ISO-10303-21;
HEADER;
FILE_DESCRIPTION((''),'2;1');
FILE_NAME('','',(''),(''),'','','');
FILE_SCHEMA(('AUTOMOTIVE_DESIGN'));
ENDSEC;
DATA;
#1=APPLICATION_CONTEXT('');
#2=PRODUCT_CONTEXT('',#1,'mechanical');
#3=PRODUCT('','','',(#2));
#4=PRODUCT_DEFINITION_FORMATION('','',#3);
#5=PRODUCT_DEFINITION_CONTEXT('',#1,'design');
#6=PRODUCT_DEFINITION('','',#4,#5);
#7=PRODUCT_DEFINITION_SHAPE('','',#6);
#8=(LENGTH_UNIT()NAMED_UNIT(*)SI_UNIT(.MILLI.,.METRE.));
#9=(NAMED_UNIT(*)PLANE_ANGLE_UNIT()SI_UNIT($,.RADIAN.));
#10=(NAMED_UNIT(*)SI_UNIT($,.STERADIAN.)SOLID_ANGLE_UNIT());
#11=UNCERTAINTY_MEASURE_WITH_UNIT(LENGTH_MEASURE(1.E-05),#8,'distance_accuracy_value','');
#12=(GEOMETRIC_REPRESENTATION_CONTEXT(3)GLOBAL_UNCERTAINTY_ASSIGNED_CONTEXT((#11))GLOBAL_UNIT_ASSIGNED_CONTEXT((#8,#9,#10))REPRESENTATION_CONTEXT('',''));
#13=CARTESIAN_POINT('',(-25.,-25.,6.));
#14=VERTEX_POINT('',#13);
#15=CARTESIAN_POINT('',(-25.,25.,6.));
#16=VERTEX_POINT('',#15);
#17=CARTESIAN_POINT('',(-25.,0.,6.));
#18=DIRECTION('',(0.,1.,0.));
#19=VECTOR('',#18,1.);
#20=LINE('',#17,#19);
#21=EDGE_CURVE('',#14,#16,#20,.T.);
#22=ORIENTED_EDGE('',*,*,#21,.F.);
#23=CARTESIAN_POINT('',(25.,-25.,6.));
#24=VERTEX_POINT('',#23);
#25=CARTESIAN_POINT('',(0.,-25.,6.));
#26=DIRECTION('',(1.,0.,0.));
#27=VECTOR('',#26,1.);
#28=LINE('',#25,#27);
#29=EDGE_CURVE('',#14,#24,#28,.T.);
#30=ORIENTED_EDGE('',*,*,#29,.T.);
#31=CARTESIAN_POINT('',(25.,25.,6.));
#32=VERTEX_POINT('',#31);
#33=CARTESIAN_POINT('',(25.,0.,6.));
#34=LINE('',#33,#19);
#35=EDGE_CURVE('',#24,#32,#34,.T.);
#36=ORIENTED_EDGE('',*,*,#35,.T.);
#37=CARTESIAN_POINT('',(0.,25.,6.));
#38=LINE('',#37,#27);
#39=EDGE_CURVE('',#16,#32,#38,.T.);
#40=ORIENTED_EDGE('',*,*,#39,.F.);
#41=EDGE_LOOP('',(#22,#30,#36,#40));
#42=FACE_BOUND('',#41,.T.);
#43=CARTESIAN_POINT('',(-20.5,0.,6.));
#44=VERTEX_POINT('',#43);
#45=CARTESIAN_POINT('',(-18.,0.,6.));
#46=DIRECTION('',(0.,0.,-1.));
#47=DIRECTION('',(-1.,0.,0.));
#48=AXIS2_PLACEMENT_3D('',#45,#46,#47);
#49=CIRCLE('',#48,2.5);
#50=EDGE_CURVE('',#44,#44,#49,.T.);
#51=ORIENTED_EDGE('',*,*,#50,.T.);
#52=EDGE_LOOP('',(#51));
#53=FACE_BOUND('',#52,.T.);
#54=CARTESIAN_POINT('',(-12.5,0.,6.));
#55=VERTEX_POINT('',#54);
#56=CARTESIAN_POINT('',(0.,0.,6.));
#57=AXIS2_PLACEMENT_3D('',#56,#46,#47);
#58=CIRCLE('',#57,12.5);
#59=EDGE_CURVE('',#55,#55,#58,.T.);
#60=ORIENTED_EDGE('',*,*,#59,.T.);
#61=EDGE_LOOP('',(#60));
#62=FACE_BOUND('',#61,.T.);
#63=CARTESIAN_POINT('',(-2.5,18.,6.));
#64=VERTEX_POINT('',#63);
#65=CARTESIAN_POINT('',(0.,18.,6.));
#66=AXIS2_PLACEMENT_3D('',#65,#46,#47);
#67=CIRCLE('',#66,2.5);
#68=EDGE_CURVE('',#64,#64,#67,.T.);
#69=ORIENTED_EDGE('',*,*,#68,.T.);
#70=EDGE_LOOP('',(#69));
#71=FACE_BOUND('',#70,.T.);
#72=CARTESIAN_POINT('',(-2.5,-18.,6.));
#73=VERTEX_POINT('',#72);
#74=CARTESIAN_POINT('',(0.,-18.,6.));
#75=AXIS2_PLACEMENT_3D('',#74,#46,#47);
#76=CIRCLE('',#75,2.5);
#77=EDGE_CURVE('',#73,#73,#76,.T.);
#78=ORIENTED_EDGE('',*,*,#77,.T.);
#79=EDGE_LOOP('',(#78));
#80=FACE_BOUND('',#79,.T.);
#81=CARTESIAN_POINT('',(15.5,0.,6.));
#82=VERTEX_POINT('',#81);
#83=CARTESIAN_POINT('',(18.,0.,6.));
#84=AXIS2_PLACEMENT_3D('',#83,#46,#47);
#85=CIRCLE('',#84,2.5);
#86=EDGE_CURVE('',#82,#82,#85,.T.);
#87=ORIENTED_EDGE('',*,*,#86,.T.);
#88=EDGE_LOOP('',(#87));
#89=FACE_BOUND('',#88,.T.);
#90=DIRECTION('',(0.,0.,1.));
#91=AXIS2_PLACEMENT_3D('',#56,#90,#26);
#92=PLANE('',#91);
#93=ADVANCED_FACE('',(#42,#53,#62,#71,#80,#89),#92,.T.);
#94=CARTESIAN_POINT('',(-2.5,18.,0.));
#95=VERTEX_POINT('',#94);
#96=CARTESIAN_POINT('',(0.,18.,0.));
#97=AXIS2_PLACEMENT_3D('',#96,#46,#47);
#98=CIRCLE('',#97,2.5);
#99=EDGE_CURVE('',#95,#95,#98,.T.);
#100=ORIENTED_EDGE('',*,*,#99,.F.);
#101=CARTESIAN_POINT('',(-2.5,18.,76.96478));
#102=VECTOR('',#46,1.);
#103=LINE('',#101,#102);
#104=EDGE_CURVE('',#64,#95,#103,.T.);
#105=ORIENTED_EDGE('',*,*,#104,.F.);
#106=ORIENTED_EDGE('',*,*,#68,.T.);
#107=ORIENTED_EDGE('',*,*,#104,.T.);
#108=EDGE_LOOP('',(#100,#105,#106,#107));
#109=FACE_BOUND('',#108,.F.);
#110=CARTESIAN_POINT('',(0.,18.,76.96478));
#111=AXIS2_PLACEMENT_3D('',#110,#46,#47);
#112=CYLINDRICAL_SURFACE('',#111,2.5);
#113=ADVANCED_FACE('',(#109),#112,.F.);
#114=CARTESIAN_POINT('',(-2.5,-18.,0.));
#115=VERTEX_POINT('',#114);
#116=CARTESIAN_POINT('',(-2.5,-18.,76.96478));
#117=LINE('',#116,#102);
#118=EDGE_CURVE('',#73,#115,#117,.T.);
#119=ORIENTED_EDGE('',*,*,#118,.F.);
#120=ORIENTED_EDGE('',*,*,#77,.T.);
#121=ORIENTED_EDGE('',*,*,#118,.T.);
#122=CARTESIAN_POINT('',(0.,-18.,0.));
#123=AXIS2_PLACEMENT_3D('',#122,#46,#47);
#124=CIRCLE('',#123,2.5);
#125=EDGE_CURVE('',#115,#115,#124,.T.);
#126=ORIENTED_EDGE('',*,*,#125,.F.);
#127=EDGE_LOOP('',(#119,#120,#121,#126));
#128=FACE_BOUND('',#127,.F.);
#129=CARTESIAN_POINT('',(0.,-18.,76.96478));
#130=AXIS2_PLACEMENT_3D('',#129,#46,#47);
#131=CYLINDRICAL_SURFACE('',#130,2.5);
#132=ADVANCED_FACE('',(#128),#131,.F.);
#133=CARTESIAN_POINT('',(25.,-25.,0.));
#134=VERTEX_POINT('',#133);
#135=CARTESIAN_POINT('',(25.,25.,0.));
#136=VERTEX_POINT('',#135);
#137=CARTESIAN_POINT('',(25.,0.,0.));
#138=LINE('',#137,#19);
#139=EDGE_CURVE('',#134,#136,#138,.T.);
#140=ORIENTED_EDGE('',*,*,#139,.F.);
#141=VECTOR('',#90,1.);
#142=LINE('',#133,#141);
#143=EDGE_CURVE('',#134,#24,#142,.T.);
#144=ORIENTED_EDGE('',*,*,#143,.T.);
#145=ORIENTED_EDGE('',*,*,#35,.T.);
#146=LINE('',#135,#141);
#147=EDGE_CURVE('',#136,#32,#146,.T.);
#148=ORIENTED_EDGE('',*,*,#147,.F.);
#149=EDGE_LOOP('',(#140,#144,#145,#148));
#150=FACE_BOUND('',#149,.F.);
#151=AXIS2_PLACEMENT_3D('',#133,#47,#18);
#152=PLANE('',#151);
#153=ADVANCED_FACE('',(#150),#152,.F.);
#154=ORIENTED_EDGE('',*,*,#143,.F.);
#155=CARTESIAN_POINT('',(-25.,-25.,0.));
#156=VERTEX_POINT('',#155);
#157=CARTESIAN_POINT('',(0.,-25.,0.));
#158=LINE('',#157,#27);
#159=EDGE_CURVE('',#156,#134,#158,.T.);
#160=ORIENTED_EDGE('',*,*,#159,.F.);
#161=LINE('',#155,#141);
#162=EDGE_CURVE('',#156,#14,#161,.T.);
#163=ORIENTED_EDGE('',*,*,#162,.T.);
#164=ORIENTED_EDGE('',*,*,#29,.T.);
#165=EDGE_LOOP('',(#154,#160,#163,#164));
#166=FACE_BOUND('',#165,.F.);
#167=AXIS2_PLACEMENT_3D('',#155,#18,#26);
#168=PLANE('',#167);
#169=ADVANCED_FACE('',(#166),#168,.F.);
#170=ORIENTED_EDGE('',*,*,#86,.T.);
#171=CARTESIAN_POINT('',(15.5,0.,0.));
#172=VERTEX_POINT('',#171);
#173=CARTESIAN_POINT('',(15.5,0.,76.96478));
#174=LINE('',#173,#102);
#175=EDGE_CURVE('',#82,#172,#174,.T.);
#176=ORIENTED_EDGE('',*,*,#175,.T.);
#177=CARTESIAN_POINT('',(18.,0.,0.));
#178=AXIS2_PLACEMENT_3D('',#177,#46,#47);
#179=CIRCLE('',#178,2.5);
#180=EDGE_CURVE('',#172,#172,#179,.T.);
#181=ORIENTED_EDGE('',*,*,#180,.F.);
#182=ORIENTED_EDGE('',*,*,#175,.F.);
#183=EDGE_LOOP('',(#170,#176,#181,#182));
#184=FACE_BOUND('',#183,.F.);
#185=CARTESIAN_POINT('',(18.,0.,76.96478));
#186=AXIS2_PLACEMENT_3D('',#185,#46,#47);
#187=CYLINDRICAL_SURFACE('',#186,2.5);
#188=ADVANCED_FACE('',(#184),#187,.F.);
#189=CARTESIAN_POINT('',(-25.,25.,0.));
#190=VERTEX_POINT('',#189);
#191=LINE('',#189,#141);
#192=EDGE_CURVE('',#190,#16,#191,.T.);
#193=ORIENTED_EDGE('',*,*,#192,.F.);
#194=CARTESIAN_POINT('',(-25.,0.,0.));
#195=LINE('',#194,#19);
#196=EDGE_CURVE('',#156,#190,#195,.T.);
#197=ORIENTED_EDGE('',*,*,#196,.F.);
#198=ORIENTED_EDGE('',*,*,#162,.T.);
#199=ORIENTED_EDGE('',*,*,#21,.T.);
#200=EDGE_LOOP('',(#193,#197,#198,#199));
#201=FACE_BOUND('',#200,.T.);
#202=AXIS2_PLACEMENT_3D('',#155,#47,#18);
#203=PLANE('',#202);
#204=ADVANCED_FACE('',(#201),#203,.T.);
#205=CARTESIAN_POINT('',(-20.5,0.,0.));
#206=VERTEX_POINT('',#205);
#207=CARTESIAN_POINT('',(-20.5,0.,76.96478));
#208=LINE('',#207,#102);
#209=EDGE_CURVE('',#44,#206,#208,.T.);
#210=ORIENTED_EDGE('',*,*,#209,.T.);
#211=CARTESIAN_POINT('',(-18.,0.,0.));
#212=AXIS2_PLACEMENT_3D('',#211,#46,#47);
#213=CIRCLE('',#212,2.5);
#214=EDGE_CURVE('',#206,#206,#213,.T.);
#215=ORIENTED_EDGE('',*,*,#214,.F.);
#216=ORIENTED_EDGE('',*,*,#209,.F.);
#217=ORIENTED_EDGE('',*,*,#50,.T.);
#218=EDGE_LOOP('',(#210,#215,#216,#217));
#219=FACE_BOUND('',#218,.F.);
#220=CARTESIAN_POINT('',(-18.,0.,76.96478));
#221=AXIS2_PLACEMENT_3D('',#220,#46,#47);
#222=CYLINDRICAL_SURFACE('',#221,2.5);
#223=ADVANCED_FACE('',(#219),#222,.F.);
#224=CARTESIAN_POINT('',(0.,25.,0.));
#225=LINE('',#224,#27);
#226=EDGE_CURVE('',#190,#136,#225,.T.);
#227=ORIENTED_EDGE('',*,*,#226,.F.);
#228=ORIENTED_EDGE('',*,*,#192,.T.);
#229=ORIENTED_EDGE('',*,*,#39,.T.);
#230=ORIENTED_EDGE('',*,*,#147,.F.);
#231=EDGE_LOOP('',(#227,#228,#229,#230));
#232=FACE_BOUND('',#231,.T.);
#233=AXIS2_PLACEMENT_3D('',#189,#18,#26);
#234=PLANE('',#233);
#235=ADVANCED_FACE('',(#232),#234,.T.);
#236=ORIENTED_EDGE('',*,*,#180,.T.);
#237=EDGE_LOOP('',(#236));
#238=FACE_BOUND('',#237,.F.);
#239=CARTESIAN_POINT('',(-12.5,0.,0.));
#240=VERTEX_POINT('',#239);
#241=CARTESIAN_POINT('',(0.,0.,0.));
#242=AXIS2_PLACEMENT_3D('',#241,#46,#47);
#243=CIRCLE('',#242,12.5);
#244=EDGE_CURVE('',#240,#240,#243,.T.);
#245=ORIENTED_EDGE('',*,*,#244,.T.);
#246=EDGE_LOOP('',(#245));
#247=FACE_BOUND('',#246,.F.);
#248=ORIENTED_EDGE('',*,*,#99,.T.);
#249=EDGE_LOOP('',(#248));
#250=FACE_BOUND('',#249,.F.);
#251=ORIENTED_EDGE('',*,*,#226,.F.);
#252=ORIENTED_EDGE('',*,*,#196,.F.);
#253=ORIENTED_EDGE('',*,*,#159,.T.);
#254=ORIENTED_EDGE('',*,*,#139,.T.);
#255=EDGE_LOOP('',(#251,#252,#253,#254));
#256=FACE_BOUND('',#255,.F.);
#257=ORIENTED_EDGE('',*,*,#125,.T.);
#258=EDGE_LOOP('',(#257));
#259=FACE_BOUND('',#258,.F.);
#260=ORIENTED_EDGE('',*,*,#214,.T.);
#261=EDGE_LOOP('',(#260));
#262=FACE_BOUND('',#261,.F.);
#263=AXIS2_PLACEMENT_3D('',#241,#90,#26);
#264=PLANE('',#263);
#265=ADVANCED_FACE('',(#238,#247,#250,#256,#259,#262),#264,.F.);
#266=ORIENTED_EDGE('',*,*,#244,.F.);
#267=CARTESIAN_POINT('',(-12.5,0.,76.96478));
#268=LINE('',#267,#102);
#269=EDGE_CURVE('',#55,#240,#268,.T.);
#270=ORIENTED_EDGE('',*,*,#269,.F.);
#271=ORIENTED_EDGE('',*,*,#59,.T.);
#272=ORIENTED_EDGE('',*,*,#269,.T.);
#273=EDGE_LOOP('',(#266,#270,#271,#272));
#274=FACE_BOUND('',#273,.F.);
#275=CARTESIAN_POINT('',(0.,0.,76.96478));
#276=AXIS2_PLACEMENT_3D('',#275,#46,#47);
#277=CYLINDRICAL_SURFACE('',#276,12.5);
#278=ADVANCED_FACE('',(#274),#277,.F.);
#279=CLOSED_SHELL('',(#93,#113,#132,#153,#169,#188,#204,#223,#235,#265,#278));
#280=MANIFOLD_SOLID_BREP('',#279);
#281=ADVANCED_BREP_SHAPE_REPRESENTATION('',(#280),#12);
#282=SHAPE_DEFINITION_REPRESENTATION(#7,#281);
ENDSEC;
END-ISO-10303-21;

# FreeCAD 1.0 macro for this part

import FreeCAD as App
import Part
import Sketcher
from FreeCAD import Vector
Q = App.Units.Quantity

doc = App.newDocument("Part")
body = doc.addObject("PartDesign::Body", "Body")

sketch1 = body.newObject("Sketcher::SketchObject", "Sketch")
sketch1.AttachmentSupport = (doc.getObject("XY_Plane"), [""])
sketch1.MapMode = "FlatFace"
sketch1.addGeometry(Part.LineSegment(Vector(-25, 25, 0), Vector(-25, -25, 0)), False)
sketch1.addGeometry(Part.LineSegment(Vector(-25, -25, 0), Vector(25, -25, 0)), False)
sketch1.addGeometry(Part.LineSegment(Vector(25, -25, 0), Vector(25, 25, 0)), False)
sketch1.addGeometry(Part.LineSegment(Vector(25, 25, 0), Vector(-25, 25, 0)), False)
sketch1.addConstraint(Sketcher.Constraint("Coincident", 0, 2, 1, 1))
sketch1.addConstraint(Sketcher.Constraint("Coincident", 1, 2, 2, 1))
sketch1.addConstraint(Sketcher.Constraint("Coincident", 2, 2, 3, 1))
sketch1.addConstraint(Sketcher.Constraint("Coincident", 3, 2, 0, 1))
sketch1.addConstraint(Sketcher.Constraint("Vertical", 0))
sketch1.addConstraint(Sketcher.Constraint("Horizontal", 1))
sketch1.addConstraint(Sketcher.Constraint("Vertical", 2))
sketch1.addConstraint(Sketcher.Constraint("Horizontal", 3))
sketch1.addConstraint(Sketcher.Constraint("Symmetric", 0, 2, 2, 2, -1, 1))
sketch1.addConstraint(Sketcher.Constraint("Equal", 3, 0))
sketch1.addConstraint(Sketcher.Constraint("DistanceX", 1, 1, 1, 2, Q("50 mm")))
pad1 = body.newObject("PartDesign::Pad", "Pad")
pad1.Profile = sketch1
pad1.Length = 6

sketch2 = body.newObject("Sketcher::SketchObject", "Sketch001")
sketch2.AttachmentSupport = (doc.getObject("XY_Plane"), [""])
sketch2.MapMode = "FlatFace"
sketch2.AttachmentOffset = App.Placement(Vector(0, 0, 6), App.Rotation())
sketch2.addGeometry(Part.Circle(Vector(0, 18, 0), Vector(0, 0, 1), 2.5), False)
sketch2.addGeometry(Part.Circle(Vector(18, 0, 0), Vector(0, 0, 1), 2.5), False)
sketch2.addGeometry(Part.Circle(Vector(0, -18, 0), Vector(0, 0, 1), 2.5), False)
sketch2.addGeometry(Part.Circle(Vector(-18, 0, 0), Vector(0, 0, 1), 2.5), False)
sketch2.addConstraint(Sketcher.Constraint("Equal", 0, 1))
sketch2.addConstraint(Sketcher.Constraint("Equal", 1, 2))
sketch2.addConstraint(Sketcher.Constraint("Equal", 2, 3))
sketch2.addConstraint(Sketcher.Constraint("Symmetric", 0, 3, 2, 3, -1, 1))
sketch2.addConstraint(Sketcher.Constraint("Symmetric", 1, 3, 3, 3, -1, 1))
sketch2.addConstraint(Sketcher.Constraint("PointOnObject", 0, 3, -2))
sketch2.addConstraint(Sketcher.Constraint("PointOnObject", 1, 3, -1))
sketch2.addConstraint(Sketcher.Constraint("Diameter", 0, Q("5 mm")))
sketch2.addConstraint(Sketcher.Constraint("DistanceY", -1, 1, 0, 3, Q("18 mm")))
sketch2.addConstraint(Sketcher.Constraint("DistanceX", -1, 1, 1, 3, Q("18 mm")))
doc.recompute()
hole = body.newObject("PartDesign::Hole", "Hole")
hole.Profile = sketch2
hole.ThreadType = "None"
hole.Diameter = 5
hole.DepthType = "ThroughAll"

sketch3 = body.newObject("Sketcher::SketchObject", "Sketch002")
sketch3.AttachmentSupport = (doc.getObject("XY_Plane"), [""])
sketch3.MapMode = "FlatFace"
sketch3.AttachmentOffset = App.Placement(Vector(0, 0, 6), App.Rotation())
sketch3.addGeometry(Part.Circle(Vector(0, 0, 0), Vector(0, 0, 1), 12.5), False)
sketch3.addConstraint(Sketcher.Constraint("Coincident", 0, 3, -1, 1))
sketch3.addConstraint(Sketcher.Constraint("Diameter", 0, Q("25 mm")))
doc.recompute()
hole2 = body.newObject("PartDesign::Hole", "Hole001")
hole2.Profile = sketch3
hole2.ThreadType = "None"
hole2.Diameter = 25
hole2.DepthType = "ThroughAll"

doc.recompute()
